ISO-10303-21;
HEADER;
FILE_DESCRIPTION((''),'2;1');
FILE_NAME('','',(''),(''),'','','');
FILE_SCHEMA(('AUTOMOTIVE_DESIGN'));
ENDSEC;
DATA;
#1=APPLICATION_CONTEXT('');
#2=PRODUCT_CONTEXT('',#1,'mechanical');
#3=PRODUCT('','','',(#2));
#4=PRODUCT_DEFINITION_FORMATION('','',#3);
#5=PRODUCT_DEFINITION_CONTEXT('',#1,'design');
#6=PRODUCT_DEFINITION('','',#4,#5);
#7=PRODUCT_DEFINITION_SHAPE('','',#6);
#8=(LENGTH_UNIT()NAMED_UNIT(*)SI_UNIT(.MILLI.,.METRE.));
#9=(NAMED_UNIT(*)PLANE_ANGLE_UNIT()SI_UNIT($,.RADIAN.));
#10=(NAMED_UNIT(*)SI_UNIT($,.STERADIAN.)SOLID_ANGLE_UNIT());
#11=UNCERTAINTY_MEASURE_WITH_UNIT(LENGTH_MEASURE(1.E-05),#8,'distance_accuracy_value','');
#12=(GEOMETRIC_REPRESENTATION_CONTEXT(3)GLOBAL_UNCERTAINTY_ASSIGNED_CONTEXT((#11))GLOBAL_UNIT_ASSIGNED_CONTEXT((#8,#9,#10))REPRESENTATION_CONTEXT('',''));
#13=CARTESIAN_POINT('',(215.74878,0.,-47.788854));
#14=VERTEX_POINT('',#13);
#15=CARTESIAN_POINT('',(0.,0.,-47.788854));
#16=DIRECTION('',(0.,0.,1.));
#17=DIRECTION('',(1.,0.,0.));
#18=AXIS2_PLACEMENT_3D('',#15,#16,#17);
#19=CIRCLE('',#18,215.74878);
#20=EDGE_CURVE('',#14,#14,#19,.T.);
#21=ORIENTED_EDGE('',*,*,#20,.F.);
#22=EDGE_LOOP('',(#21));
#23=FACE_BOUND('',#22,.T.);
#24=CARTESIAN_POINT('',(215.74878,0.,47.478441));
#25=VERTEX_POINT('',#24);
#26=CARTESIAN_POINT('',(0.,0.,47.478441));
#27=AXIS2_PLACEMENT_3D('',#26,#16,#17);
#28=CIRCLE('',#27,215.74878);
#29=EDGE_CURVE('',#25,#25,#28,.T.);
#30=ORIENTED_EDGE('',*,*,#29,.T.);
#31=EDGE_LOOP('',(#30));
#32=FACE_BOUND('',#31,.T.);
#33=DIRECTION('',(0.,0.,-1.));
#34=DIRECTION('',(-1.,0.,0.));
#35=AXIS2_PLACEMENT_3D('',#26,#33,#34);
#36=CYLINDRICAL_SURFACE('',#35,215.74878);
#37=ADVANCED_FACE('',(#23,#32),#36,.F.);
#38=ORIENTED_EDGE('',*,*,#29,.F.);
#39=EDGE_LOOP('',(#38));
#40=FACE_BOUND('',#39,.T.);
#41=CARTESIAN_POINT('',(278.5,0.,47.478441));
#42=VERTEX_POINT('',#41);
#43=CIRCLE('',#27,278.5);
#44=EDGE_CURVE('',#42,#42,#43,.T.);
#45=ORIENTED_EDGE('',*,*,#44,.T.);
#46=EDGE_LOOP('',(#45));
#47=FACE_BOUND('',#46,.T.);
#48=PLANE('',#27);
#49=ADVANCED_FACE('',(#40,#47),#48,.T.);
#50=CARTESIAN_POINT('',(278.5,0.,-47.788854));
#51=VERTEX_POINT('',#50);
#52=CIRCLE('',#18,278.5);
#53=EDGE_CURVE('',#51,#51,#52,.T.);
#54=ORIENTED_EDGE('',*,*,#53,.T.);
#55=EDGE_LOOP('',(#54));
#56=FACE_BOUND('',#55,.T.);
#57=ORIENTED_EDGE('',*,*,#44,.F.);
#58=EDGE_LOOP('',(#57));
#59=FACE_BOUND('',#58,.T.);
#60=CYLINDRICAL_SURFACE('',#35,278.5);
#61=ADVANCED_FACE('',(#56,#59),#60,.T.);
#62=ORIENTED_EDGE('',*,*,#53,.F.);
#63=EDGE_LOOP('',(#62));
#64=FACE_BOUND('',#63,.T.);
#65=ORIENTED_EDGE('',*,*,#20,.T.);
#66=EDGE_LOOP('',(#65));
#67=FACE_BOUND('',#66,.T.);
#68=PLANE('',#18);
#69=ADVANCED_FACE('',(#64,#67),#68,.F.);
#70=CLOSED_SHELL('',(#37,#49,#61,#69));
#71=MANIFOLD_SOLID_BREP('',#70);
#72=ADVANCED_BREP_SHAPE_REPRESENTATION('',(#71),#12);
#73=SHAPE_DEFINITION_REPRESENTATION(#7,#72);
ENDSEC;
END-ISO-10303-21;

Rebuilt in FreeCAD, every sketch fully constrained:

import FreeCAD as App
import Part
import Sketcher

V = App.Vector
Q = App.Units.Quantity

doc = App.newDocument("Part")
body = doc.addObject("PartDesign::Body", "Body")

sketch1 = doc.addObject("Sketcher::SketchObject", "Sketch")
body.addObject(sketch1)
sketch1.AttachmentSupport = (doc.XY_Plane, [""])
sketch1.MapMode = "FlatFace"
sketch1.addGeometry(Part.Circle(V(0, 0, 0), V(0, 0, 1), 278), False)
sketch1.addGeometry(Part.Circle(V(0, 0, 0), V(0, 0, 1), 216), False)
sketch1.addConstraint(Sketcher.Constraint("Coincident", 0, 3, -1, 1))
sketch1.addConstraint(Sketcher.Constraint("Coincident", 1, 3, -1, 1))
sketch1.addConstraint(Sketcher.Constraint("Diameter", 0, Q("557 mm")))
sketch1.addConstraint(Sketcher.Constraint("Diameter", 1, Q("431.497561 mm")))
pad1 = doc.addObject("PartDesign::Pad", "Pad")
body.addObject(pad1)
pad1.Profile = sketch1
pad1.Type = "TwoLengths"
pad1.Length = 47.478441
pad1.Length2 = 47.788854

doc.recompute()
